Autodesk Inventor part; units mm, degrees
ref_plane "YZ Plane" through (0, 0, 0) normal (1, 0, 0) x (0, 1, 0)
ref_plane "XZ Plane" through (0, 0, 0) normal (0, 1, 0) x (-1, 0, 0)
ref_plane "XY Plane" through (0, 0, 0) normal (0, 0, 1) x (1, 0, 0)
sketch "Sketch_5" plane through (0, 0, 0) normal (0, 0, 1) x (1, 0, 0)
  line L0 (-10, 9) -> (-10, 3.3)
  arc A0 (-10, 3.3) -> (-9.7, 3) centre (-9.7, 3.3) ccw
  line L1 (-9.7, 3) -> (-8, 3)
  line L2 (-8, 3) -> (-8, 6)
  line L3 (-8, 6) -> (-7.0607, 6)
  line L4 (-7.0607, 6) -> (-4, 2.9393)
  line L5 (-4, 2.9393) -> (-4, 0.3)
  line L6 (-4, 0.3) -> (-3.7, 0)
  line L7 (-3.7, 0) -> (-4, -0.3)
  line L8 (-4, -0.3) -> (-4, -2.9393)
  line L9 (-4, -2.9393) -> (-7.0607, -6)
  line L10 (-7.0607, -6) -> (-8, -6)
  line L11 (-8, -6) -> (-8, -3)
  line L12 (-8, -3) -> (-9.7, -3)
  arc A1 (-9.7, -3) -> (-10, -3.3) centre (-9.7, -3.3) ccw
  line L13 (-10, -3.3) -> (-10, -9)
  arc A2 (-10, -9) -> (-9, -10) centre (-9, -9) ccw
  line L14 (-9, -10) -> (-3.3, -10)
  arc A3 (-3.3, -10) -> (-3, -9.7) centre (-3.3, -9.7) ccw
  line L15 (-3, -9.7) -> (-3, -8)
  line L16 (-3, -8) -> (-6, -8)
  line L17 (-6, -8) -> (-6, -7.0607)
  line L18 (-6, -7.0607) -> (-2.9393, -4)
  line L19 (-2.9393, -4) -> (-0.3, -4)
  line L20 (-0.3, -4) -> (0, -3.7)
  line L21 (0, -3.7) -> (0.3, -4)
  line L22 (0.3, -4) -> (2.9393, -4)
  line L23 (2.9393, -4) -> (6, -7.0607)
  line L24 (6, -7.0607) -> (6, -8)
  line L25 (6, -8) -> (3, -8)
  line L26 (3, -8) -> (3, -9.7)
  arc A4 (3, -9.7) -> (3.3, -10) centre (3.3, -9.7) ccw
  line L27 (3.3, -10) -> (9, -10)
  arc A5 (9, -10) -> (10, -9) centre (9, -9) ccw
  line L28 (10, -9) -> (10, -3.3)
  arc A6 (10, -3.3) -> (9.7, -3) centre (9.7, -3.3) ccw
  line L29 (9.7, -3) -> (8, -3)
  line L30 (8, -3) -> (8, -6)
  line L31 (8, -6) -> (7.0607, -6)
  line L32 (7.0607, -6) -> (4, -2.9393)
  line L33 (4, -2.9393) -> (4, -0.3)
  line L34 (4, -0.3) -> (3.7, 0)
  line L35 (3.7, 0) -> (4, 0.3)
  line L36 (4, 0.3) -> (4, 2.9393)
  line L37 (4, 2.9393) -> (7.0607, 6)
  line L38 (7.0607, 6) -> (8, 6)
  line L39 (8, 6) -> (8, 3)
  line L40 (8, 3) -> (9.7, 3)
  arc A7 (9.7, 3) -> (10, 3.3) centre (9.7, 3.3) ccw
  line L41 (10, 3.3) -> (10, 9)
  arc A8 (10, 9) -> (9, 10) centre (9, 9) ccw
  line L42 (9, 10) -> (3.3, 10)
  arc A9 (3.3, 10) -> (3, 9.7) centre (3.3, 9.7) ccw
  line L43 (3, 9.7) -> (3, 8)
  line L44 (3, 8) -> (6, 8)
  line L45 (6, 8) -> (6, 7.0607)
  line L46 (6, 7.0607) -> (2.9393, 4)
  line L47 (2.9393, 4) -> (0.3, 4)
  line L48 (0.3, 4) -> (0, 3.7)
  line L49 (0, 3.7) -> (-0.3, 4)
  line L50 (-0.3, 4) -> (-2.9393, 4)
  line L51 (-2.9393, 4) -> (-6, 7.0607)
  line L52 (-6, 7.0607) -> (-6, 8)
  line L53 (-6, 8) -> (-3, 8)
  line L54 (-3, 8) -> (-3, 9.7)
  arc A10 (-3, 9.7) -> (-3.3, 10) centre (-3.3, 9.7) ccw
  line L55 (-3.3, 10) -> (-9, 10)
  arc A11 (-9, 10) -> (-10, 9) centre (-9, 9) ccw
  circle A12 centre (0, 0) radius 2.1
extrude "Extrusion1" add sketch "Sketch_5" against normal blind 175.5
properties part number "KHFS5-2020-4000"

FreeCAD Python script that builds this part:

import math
import FreeCAD as App
import Part
import Sketcher
from FreeCAD import Vector

doc = App.newDocument("Part")
body = doc.addObject("PartDesign::Body", "Body")

# Sketch on XY plane
sketch1 = body.newObject("Sketcher::SketchObject", "Sketch")
sketch1.AttachmentSupport = (doc.getObject("XY_Plane"), [""])
sketch1.MapMode = "FlatFace"
sketch1.addGeometry([
    Part.ArcOfCircle(Part.Circle(Vector(-9, 9, 0), Vector(0, 0, 1), 1), math.radians(90), math.radians(180)),  # 0
    Part.LineSegment(Vector(-10, 9, 0), Vector(-10, 3.3, 0)),  # 1
    Part.ArcOfCircle(Part.Circle(Vector(-9.7, 3.3, 0), Vector(0, 0, 1), 0.3), math.radians(180), math.radians(270)),  # 2
    Part.LineSegment(Vector(-9.7, 3, 0), Vector(-8, 3, 0)),  # 3
    Part.LineSegment(Vector(-8, 3, 0), Vector(-8, 6, 0)),  # 4
    Part.LineSegment(Vector(-8, 6, 0), Vector(-7.06, 6, 0)),  # 5
    Part.LineSegment(Vector(-7.06, 6, 0), Vector(-4, 2.94, 0)),  # 6
    Part.LineSegment(Vector(-4, 2.94, 0), Vector(-4, 0.3, 0)),  # 7
    Part.LineSegment(Vector(-4, 0.3, 0), Vector(-3.7, 0, 0)),  # 8
    Part.LineSegment(Vector(-3.7, 0, 0), Vector(-4, -0.3, 0)),  # 9
    Part.LineSegment(Vector(-4, -0.3, 0), Vector(-4, -2.94, 0)),  # 10
    Part.LineSegment(Vector(-4, -2.94, 0), Vector(-7.06, -6, 0)),  # 11
    Part.LineSegment(Vector(-7.06, -6, 0), Vector(-8, -6, 0)),  # 12
    Part.LineSegment(Vector(-8, -6, 0), Vector(-8, -3, 0)),  # 13
    Part.LineSegment(Vector(-8, -3, 0), Vector(-9.7, -3, 0)),  # 14
    Part.ArcOfCircle(Part.Circle(Vector(-9.7, -3.3, 0), Vector(0, 0, 1), 0.3), math.radians(90), math.radians(180)),  # 15
    Part.LineSegment(Vector(-10, -3.3, 0), Vector(-10, -9, 0)),  # 16
    Part.ArcOfCircle(Part.Circle(Vector(-9, -9, 0), Vector(0, 0, 1), 1), math.radians(180), math.radians(270)),  # 17
    Part.LineSegment(Vector(-9, -10, 0), Vector(-3.3, -10, 0)),  # 18
    Part.ArcOfCircle(Part.Circle(Vector(-3.3, -9.7, 0), Vector(0, 0, 1), 0.3), math.radians(-90), math.radians(0)),  # 19
    Part.LineSegment(Vector(-3, -9.7, 0), Vector(-3, -8, 0)),  # 20
    Part.LineSegment(Vector(-3, -8, 0), Vector(-6, -8, 0)),  # 21
    Part.LineSegment(Vector(-6, -8, 0), Vector(-6, -7.06, 0)),  # 22
    Part.LineSegment(Vector(-6, -7.06, 0), Vector(-2.94, -4, 0)),  # 23
    Part.LineSegment(Vector(-2.94, -4, 0), Vector(-0.3, -4, 0)),  # 24
    Part.LineSegment(Vector(-0.3, -4, 0), Vector(0, -3.7, 0)),  # 25
    Part.LineSegment(Vector(0, -3.7, 0), Vector(0.3, -4, 0)),  # 26
    Part.LineSegment(Vector(0.3, -4, 0), Vector(2.94, -4, 0)),  # 27
    Part.LineSegment(Vector(2.94, -4, 0), Vector(6, -7.06, 0)),  # 28
    Part.LineSegment(Vector(6, -7.06, 0), Vector(6, -8, 0)),  # 29
    Part.LineSegment(Vector(6, -8, 0), Vector(3, -8, 0)),  # 30
    Part.LineSegment(Vector(3, -8, 0), Vector(3, -9.7, 0)),  # 31
    Part.ArcOfCircle(Part.Circle(Vector(3.3, -9.7, 0), Vector(0, 0, 1), 0.3), math.radians(180), math.radians(270)),  # 32
    Part.LineSegment(Vector(3.3, -10, 0), Vector(9, -10, 0)),  # 33
    Part.ArcOfCircle(Part.Circle(Vector(9, -9, 0), Vector(0, 0, 1), 1), math.radians(-90), math.radians(0)),  # 34
    Part.LineSegment(Vector(10, -9, 0), Vector(10, -3.3, 0)),  # 35
    Part.ArcOfCircle(Part.Circle(Vector(9.7, -3.3, 0), Vector(0, 0, 1), 0.3), math.radians(0), math.radians(90)),  # 36
    Part.LineSegment(Vector(9.7, -3, 0), Vector(8, -3, 0)),  # 37
    Part.LineSegment(Vector(8, -3, 0), Vector(8, -6, 0)),  # 38
    Part.LineSegment(Vector(8, -6, 0), Vector(7.06, -6, 0)),  # 39
    Part.LineSegment(Vector(7.06, -6, 0), Vector(4, -2.94, 0)),  # 40
    Part.LineSegment(Vector(4, -2.94, 0), Vector(4, -0.3, 0)),  # 41
    Part.LineSegment(Vector(4, -0.3, 0), Vector(3.7, 0, 0)),  # 42
    Part.LineSegment(Vector(3.7, 0, 0), Vector(4, 0.3, 0)),  # 43
    Part.LineSegment(Vector(4, 0.3, 0), Vector(4, 2.94, 0)),  # 44
    Part.LineSegment(Vector(4, 2.94, 0), Vector(7.06, 6, 0)),  # 45
    Part.LineSegment(Vector(7.06, 6, 0), Vector(8, 6, 0)),  # 46
    Part.LineSegment(Vector(8, 6, 0), Vector(8, 3, 0)),  # 47
    Part.LineSegment(Vector(8, 3, 0), Vector(9.7, 3, 0)),  # 48
    Part.ArcOfCircle(Part.Circle(Vector(9.7, 3.3, 0), Vector(0, 0, 1), 0.3), math.radians(-90), math.radians(0)),  # 49
    Part.LineSegment(Vector(10, 3.3, 0), Vector(10, 9, 0)),  # 50
    Part.ArcOfCircle(Part.Circle(Vector(9, 9, 0), Vector(0, 0, 1), 1), math.radians(0), math.radians(90)),  # 51
    Part.LineSegment(Vector(9, 10, 0), Vector(3.3, 10, 0)),  # 52
    Part.ArcOfCircle(Part.Circle(Vector(3.3, 9.7, 0), Vector(0, 0, 1), 0.3), math.radians(90), math.radians(180)),  # 53
    Part.LineSegment(Vector(3, 9.7, 0), Vector(3, 8, 0)),  # 54
    Part.LineSegment(Vector(3, 8, 0), Vector(6, 8, 0)),  # 55
    Part.LineSegment(Vector(6, 8, 0), Vector(6, 7.06, 0)),  # 56
    Part.LineSegment(Vector(6, 7.06, 0), Vector(2.94, 4, 0)),  # 57
    Part.LineSegment(Vector(2.94, 4, 0), Vector(0.3, 4, 0)),  # 58
    Part.LineSegment(Vector(0.3, 4, 0), Vector(0, 3.7, 0)),  # 59
    Part.LineSegment(Vector(0, 3.7, 0), Vector(-0.3, 4, 0)),  # 60
    Part.LineSegment(Vector(-0.3, 4, 0), Vector(-2.94, 4, 0)),  # 61
    Part.LineSegment(Vector(-2.94, 4, 0), Vector(-6, 7.06, 0)),  # 62
    Part.LineSegment(Vector(-6, 7.06, 0), Vector(-6, 8, 0)),  # 63
    Part.LineSegment(Vector(-6, 8, 0), Vector(-3, 8, 0)),  # 64
    Part.LineSegment(Vector(-3, 8, 0), Vector(-3, 9.7, 0)),  # 65
    Part.ArcOfCircle(Part.Circle(Vector(-3.3, 9.7, 0), Vector(0, 0, 1), 0.3), math.radians(0), math.radians(90)),  # 66
    Part.LineSegment(Vector(-3.3, 10, 0), Vector(-9, 10, 0)),  # 67
    Part.Circle(Vector(0, 0, 0), Vector(0, 0, 1), 2.1),  # 68
], False)
sketch1.addConstraint([
    Sketcher.Constraint("Tangent", 0, 2, 1, 1),
    Sketcher.Constraint("Tangent", 1, 2, 2, 1),
    Sketcher.Constraint("Tangent", 2, 2, 3, 1),
    Sketcher.Constraint("Coincident", 3, 2, 4, 1),
    Sketcher.Constraint("Coincident", 4, 2, 5, 1),
    Sketcher.Constraint("Coincident", 5, 2, 6, 1),
    Sketcher.Constraint("Coincident", 6, 2, 7, 1),
    Sketcher.Constraint("Coincident", 7, 2, 8, 1),
    Sketcher.Constraint("Coincident", 8, 2, 9, 1),
    Sketcher.Constraint("Coincident", 9, 2, 10, 1),
    Sketcher.Constraint("Coincident", 10, 2, 11, 1),
    Sketcher.Constraint("Coincident", 11, 2, 12, 1),
    Sketcher.Constraint("Coincident", 12, 2, 13, 1),
    Sketcher.Constraint("Coincident", 13, 2, 14, 1),
    Sketcher.Constraint("Tangent", 14, 2, 15, 1),
    Sketcher.Constraint("Tangent", 15, 2, 16, 1),
    Sketcher.Constraint("Tangent", 16, 2, 17, 1),
    Sketcher.Constraint("Tangent", 17, 2, 18, 1),
    Sketcher.Constraint("Tangent", 18, 2, 19, 1),
    Sketcher.Constraint("Tangent", 19, 2, 20, 1),
    Sketcher.Constraint("Coincident", 20, 2, 21, 1),
    Sketcher.Constraint("Coincident", 21, 2, 22, 1),
    Sketcher.Constraint("Coincident", 22, 2, 23, 1),
    Sketcher.Constraint("Coincident", 23, 2, 24, 1),
    Sketcher.Constraint("Coincident", 24, 2, 25, 1),
    Sketcher.Constraint("Coincident", 25, 2, 26, 1),
    Sketcher.Constraint("Coincident", 26, 2, 27, 1),
    Sketcher.Constraint("Coincident", 27, 2, 28, 1),
    Sketcher.Constraint("Coincident", 28, 2, 29, 1),
    Sketcher.Constraint("Coincident", 29, 2, 30, 1),
    Sketcher.Constraint("Coincident", 30, 2, 31, 1),
    Sketcher.Constraint("Tangent", 31, 2, 32, 1),
    Sketcher.Constraint("Tangent", 32, 2, 33, 1),
    Sketcher.Constraint("Tangent", 33, 2, 34, 1),
    Sketcher.Constraint("Tangent", 34, 2, 35, 1),
    Sketcher.Constraint("Tangent", 35, 2, 36, 1),
    Sketcher.Constraint("Tangent", 36, 2, 37, 1),
    Sketcher.Constraint("Coincident", 37, 2, 38, 1),
    Sketcher.Constraint("Coincident", 38, 2, 39, 1),
    Sketcher.Constraint("Coincident", 39, 2, 40, 1),
    Sketcher.Constraint("Coincident", 40, 2, 41, 1),
    Sketcher.Constraint("Coincident", 41, 2, 42, 1),
    Sketcher.Constraint("Coincident", 42, 2, 43, 1),
    Sketcher.Constraint("Coincident", 43, 2, 44, 1),
    Sketcher.Constraint("Coincident", 44, 2, 45, 1),
    Sketcher.Constraint("Coincident", 45, 2, 46, 1),
    Sketcher.Constraint("Coincident", 46, 2, 47, 1),
    Sketcher.Constraint("Coincident", 47, 2, 48, 1),
    Sketcher.Constraint("Tangent", 48, 2, 49, 1),
    Sketcher.Constraint("Tangent", 49, 2, 50, 1),
    Sketcher.Constraint("Tangent", 50, 2, 51, 1),
    Sketcher.Constraint("Tangent", 51, 2, 52, 1),
    Sketcher.Constraint("Tangent", 52, 2, 53, 1),
    Sketcher.Constraint("Tangent", 53, 2, 54, 1),
    Sketcher.Constraint("Coincident", 54, 2, 55, 1),
    Sketcher.Constraint("Coincident", 55, 2, 56, 1),
    Sketcher.Constraint("Coincident", 56, 2, 57, 1),
    Sketcher.Constraint("Coincident", 57, 2, 58, 1),
    Sketcher.Constraint("Coincident", 58, 2, 59, 1),
    Sketcher.Constraint("Coincident", 59, 2, 60, 1),
    Sketcher.Constraint("Coincident", 60, 2, 61, 1),
    Sketcher.Constraint("Coincident", 61, 2, 62, 1),
    Sketcher.Constraint("Coincident", 62, 2, 63, 1),
    Sketcher.Constraint("Coincident", 63, 2, 64, 1),
    Sketcher.Constraint("Coincident", 64, 2, 65, 1),
    Sketcher.Constraint("Tangent", 65, 2, 66, 1),
    Sketcher.Constraint("Tangent", 66, 2, 67, 1),
    Sketcher.Constraint("Tangent", 67, 2, 0, 1),
    Sketcher.Constraint("Vertical", 1),
    Sketcher.Constraint("Horizontal", 3),
    Sketcher.Constraint("Vertical", 4),
    Sketcher.Constraint("Horizontal", 5),
    Sketcher.Constraint("Vertical", 7),
    Sketcher.Constraint("Vertical", 10),
    Sketcher.Constraint("Horizontal", 12),
    Sketcher.Constraint("Vertical", 13),
    Sketcher.Constraint("Horizontal", 14),
    Sketcher.Constraint("Vertical", 16),
    Sketcher.Constraint("Horizontal", 18),
    Sketcher.Constraint("Vertical", 20),
    Sketcher.Constraint("Horizontal", 21),
    Sketcher.Constraint("Vertical", 22),
    Sketcher.Constraint("Horizontal", 24),
    Sketcher.Constraint("Horizontal", 27),
    Sketcher.Constraint("Vertical", 29),
    Sketcher.Constraint("Horizontal", 30),
    Sketcher.Constraint("Vertical", 31),
    Sketcher.Constraint("Horizontal", 33),
    Sketcher.Constraint("Vertical", 35),
    Sketcher.Constraint("Horizontal", 37),
    Sketcher.Constraint("Vertical", 38),
    Sketcher.Constraint("Horizontal", 39),
    Sketcher.Constraint("Vertical", 41),
    Sketcher.Constraint("Vertical", 44),
    Sketcher.Constraint("Horizontal", 46),
    Sketcher.Constraint("Vertical", 47),
    Sketcher.Constraint("Horizontal", 48),
    Sketcher.Constraint("Vertical", 50),
    Sketcher.Constraint("Horizontal", 52),
    Sketcher.Constraint("Vertical", 54),
    Sketcher.Constraint("Horizontal", 55),
    Sketcher.Constraint("Vertical", 56),
    Sketcher.Constraint("Horizontal", 58),
    Sketcher.Constraint("Horizontal", 61),
    Sketcher.Constraint("Vertical", 63),
    Sketcher.Constraint("Horizontal", 64),
    Sketcher.Constraint("Vertical", 65),
    Sketcher.Constraint("Horizontal", 67),
    Sketcher.Constraint("Coincident", 68, 3, -1, 1),
    Sketcher.Constraint("Equal", 2, 15),
    Sketcher.Constraint("Equal", 0, 17),
    Sketcher.Constraint("Equal", 15, 19),
    Sketcher.Constraint("Equal", 19, 32),
    Sketcher.Constraint("Equal", 17, 34),
    Sketcher.Constraint("Equal", 32, 36),
    Sketcher.Constraint("Equal", 36, 49),
    Sketcher.Constraint("Equal", 34, 51),
    Sketcher.Constraint("Equal", 49, 53),
    Sketcher.Constraint("Equal", 53, 66),
    Sketcher.Constraint("Symmetric", 0, 3, 34, 3, -1, 1),
    Sketcher.Constraint("Symmetric", 15, 3, 49, 3, -1, 1),
    Sketcher.Constraint("Symmetric", 19, 3, 53, 3, -1, 1),
    Sketcher.Constraint("Symmetric", 3, 2, 37, 2, -1, 1),
    Sketcher.Constraint("Symmetric", 5, 2, 39, 2, -1, 1),
    Sketcher.Constraint("Symmetric", 6, 2, 40, 2, -1, 1),
    Sketcher.Constraint("Symmetric", 8, 2, 42, 2, -1, 1),
    Sketcher.Constraint("Symmetric", 9, 2, 43, 2, -1, 1),
    Sketcher.Constraint("Symmetric", 11, 2, 45, 2, -1, 1),
    Sketcher.Constraint("Symmetric", 21, 2, 55, 2, -1, 1),
    Sketcher.Constraint("Symmetric", 23, 2, 57, 2, -1, 1),
    Sketcher.Constraint("Symmetric", 25, 2, 59, 2, -1, 1),
    Sketcher.Constraint("Symmetric", 26, 2, 60, 2, -1, 1),
    Sketcher.Constraint("Symmetric", 28, 2, 62, 2, -1, 1),
    Sketcher.Constraint("Symmetric", 30, 2, 64, 2, -1, 1),
    Sketcher.Constraint("Symmetric", 19, 3, 32, 3, -2),
    Sketcher.Constraint("Symmetric", 15, 3, 36, 3, -2),
    Sketcher.Constraint("Symmetric", 24, 2, 26, 2, -2),
    Sketcher.Constraint("Symmetric", 22, 2, 28, 2, -2),
    Sketcher.Constraint("Symmetric", 12, 2, 38, 2, -2),
    Sketcher.Constraint("Symmetric", 10, 2, 40, 2, -2),
    Sketcher.Constraint("PointOnObject", 8, 2, -1),
    Sketcher.Constraint("PointOnObject", 25, 2, -2),
    Sketcher.Constraint("Parallel", 6, 8),
    Sketcher.Constraint("Perpendicular", 8, 9),
    Sketcher.Constraint("Parallel", 9, 11),
    Sketcher.Constraint("Parallel", 11, 23),
    Sketcher.Constraint("Parallel", 23, 25),
    Sketcher.Constraint("Perpendicular", 25, 26),
    Sketcher.Constraint("Parallel", 26, 28),
    Sketcher.Constraint("Parallel", 40, 42),
    Sketcher.Constraint("Parallel", 43, 45),
    Sketcher.Constraint("Parallel", 45, 57),
    Sketcher.Constraint("Parallel", 57, 59),
    Sketcher.Constraint("Parallel", 60, 62),
    Sketcher.Constraint("Horizontal", 21, 2, 29, 2),
    Sketcher.Constraint("Vertical", 38, 2, 46, 2),
    Sketcher.Constraint("Equal", 67, 1),
    Sketcher.Constraint("Equal", 64, 4),
    Sketcher.Constraint("Equal", 61, 7),
    Sketcher.Constraint("Equal", 48, 20),
    Sketcher.Constraint("Equal", 46, 22),
    Sketcher.Constraint("Equal", 11, 23),
    Sketcher.Constraint("Equal", 9, 25),
    Sketcher.Constraint("Radius", 0, 1.0),
    Sketcher.Constraint("Diameter", 68, 4.2),
    Sketcher.Constraint("Radius", 2, 0.3),
    Sketcher.Constraint("DistanceX", 21, 2, 21, 1, 3.0),
    Sketcher.Constraint("DistanceX", 3, 1, 3, 2, 1.7),
    Sketcher.Constraint("DistanceX", 18, 1, 18, 2, 5.7),
    Sketcher.Constraint("DistanceX", 0, 3, -1, 1, 9.0),
    Sketcher.Constraint("DistanceX", 6, 2, -1, 1, 4.0),
    Sketcher.Constraint("DistanceY", -1, 1, 7, 2, 0.3),
    Sketcher.Constraint("DistanceX", 5, 1, 5, 2, 0.9393),
])
pad1 = body.newObject("PartDesign::Pad", "Pad")
pad1.Profile = sketch1
pad1.Length = 175.5
pad1.Reversed = True

doc.recompute()
